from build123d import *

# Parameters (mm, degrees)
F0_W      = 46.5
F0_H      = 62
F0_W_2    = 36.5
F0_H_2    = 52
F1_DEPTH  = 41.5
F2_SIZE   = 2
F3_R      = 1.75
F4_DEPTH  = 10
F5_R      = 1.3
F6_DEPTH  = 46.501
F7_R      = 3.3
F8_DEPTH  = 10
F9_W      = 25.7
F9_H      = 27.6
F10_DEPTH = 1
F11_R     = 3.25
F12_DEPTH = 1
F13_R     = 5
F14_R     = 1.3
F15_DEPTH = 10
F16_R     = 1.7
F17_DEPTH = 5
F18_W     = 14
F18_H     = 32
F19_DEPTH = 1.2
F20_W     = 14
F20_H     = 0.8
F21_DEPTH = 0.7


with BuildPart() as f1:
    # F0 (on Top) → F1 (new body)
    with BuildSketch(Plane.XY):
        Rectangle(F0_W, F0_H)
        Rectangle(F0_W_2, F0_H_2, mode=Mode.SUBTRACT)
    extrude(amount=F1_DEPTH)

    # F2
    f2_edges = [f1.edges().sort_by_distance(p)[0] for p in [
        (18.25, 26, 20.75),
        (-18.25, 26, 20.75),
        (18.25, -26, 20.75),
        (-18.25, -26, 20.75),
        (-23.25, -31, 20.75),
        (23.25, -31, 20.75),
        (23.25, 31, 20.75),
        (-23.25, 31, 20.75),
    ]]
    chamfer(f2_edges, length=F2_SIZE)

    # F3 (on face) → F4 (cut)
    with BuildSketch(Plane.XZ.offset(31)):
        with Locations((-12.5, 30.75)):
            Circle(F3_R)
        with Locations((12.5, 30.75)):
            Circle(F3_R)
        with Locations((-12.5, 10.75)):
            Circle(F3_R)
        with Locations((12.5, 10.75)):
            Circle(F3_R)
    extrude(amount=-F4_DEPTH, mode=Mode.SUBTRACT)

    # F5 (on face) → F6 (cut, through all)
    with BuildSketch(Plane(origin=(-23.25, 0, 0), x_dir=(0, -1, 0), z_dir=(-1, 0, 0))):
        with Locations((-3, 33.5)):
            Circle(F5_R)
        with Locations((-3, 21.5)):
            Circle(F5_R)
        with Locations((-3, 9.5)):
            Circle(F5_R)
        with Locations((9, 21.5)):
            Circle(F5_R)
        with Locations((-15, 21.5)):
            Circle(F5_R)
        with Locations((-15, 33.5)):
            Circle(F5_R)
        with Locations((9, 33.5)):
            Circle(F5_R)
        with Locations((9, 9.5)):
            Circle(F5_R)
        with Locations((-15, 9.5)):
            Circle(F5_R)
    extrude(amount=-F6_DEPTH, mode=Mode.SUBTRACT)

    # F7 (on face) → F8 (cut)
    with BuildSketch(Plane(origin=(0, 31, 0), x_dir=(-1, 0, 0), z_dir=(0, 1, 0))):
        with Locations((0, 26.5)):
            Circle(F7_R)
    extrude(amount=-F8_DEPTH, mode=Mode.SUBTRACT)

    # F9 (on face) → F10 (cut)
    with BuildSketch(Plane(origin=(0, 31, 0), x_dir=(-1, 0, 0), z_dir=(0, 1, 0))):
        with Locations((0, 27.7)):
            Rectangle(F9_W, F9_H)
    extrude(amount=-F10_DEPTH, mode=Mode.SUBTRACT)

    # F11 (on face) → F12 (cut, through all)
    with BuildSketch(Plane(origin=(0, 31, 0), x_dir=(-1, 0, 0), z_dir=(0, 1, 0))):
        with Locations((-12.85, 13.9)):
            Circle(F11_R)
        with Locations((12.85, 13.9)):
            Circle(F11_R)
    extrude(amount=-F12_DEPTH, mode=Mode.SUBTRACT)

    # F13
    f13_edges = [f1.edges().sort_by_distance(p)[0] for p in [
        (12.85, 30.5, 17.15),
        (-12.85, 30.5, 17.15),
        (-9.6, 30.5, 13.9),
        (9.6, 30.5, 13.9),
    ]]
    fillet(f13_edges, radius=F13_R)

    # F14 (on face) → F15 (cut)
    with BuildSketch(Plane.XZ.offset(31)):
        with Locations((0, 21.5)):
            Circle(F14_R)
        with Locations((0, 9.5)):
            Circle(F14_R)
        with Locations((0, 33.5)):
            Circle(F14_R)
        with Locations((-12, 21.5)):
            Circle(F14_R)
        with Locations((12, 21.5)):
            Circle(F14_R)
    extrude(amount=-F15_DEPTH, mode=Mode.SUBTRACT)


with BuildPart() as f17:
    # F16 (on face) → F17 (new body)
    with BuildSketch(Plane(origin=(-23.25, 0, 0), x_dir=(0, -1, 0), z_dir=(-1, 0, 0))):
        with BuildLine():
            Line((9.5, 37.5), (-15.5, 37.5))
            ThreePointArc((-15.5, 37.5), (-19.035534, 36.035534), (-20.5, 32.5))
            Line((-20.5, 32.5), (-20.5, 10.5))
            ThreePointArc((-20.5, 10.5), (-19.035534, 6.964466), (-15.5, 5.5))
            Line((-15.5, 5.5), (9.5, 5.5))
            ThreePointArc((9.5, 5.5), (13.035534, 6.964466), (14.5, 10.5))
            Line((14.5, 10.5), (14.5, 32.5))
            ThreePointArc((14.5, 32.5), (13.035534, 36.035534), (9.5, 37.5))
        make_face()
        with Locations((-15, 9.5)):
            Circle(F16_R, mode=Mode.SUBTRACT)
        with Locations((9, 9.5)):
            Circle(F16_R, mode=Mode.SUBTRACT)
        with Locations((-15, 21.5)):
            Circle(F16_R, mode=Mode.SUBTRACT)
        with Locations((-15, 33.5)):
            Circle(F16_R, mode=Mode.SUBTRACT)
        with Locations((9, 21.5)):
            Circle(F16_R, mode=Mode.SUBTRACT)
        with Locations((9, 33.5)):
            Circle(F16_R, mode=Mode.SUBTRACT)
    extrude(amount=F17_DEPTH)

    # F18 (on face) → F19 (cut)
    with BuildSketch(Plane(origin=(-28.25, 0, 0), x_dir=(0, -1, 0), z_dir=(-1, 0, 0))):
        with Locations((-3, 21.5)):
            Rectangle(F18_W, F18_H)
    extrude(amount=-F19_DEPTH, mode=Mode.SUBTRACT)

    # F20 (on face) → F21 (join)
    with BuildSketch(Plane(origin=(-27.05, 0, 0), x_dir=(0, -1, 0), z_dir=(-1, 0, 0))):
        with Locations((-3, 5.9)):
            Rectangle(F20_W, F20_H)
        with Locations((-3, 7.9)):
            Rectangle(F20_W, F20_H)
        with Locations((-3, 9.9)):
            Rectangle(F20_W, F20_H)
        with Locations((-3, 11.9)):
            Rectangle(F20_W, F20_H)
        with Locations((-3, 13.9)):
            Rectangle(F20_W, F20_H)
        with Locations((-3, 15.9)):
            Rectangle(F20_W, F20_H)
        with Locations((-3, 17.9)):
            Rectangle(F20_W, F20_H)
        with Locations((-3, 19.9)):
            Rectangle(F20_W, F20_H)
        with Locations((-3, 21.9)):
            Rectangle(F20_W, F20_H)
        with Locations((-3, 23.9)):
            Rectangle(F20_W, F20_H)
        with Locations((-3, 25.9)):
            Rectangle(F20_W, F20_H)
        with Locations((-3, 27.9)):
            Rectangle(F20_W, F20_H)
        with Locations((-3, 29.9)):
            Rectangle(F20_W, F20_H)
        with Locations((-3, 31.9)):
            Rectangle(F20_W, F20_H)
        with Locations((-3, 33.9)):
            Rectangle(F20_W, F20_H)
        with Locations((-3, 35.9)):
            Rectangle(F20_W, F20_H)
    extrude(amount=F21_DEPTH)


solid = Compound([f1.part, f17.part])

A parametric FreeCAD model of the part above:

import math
import FreeCAD as App
import Part
import Sketcher
from FreeCAD import Vector
Q = App.Units.Quantity


def edges_at(feature, points):
    """Names of the edges that pass closest to the given points."""
    edges = feature.Shape.Edges
    near = lambda p: min(range(len(edges)), key=lambda i: edges[i].distToShape(Part.Vertex(*p))[0])
    return sorted({f"Edge{near(p) + 1}" for p in points})


def add_polygon(sketch, points):
    """Adds a closed chain of lines whose ends are joined by coincident constraints."""
    first, n = sketch.GeometryCount, len(points)
    for a, b in zip(points, points[1:] + points[:1]):
        sketch.addGeometry(Part.LineSegment(App.Vector(*a, 0), App.Vector(*b, 0)), False)
    for i in range(n):
        sketch.addConstraint(Sketcher.Constraint("Coincident", first + i, 2, first + (i + 1) % n, 1))

doc = App.newDocument("Part")
body = doc.addObject("PartDesign::Body", "Body")

sketch1 = body.newObject("Sketcher::SketchObject", "Sketch")
sketch1.AttachmentSupport = (doc.getObject("XY_Plane"), [""])
sketch1.MapMode = "FlatFace"
add_polygon(sketch1, [(-23, 31), (-23, -31), (23, -31), (23, 31)])
add_polygon(sketch1, [(18, -26), (-18, -26), (-18, 26), (18, 26)])
sketch1.addConstraint([
    Sketcher.Constraint("Vertical", 0),
    Sketcher.Constraint("Horizontal", 1),
    Sketcher.Constraint("Vertical", 2),
    Sketcher.Constraint("Horizontal", 3),
    Sketcher.Constraint("Horizontal", 4),
    Sketcher.Constraint("Vertical", 5),
    Sketcher.Constraint("Horizontal", 6),
    Sketcher.Constraint("Vertical", 7),
    Sketcher.Constraint("Symmetric", 0, 2, 2, 2, -1, 1),
    Sketcher.Constraint("Symmetric", 4, 2, 6, 2, -1, 1),
    Sketcher.Constraint("DistanceY", 0, 2, 0, 1, Q("62 mm")),
    Sketcher.Constraint("DistanceY", 5, 1, 5, 2, Q("52 mm")),
    Sketcher.Constraint("DistanceX", 1, 1, 1, 2, Q("46.5 mm")),
    Sketcher.Constraint("DistanceX", 4, 2, 4, 1, Q("36.5 mm")),
])
pad1 = body.newObject("PartDesign::Pad", "Pad")
pad1.Profile = sketch1
pad1.Length = 41.5
doc.recompute()

chamfer = body.newObject("PartDesign::Chamfer", "Chamfer")
chamfer.Base = (pad1, edges_at(pad1, [
    (18.25, 26, 20.75),
    (-18.25, 26, 20.75),
    (18.25, -26, 20.75),
    (-18.25, -26, 20.75),
    (-23.25, -31, 20.75),
    (23.25, -31, 20.75),
    (23.25, 31, 20.75),
    (-23.25, 31, 20.75),
]))
chamfer.Size = 2

sketch2 = body.newObject("Sketcher::SketchObject", "Sketch001")
sketch2.AttachmentSupport = (doc.getObject("XZ_Plane"), [""])
sketch2.MapMode = "FlatFace"
sketch2.AttachmentOffset = App.Placement(Vector(0, 0, 31), App.Rotation())
sketch2.addGeometry([
    Part.Circle(Vector(-12.5, 30.8, 0), Vector(0, 0, 1), 1.8),
    Part.Circle(Vector(12.5, 30.8, 0), Vector(0, 0, 1), 1.8),
    Part.Circle(Vector(-12.5, 10.8, 0), Vector(0, 0, 1), 1.8),
    Part.Circle(Vector(12.5, 10.8, 0), Vector(0, 0, 1), 1.8),
], False)
sketch2.addConstraint([
    Sketcher.Constraint("Equal", 0, 1),
    Sketcher.Constraint("Equal", 1, 2),
    Sketcher.Constraint("Equal", 2, 3),
    Sketcher.Constraint("Symmetric", 0, 3, 1, 3, -2),
    Sketcher.Constraint("Symmetric", 2, 3, 3, 3, -2),
    Sketcher.Constraint("Vertical", 0, 3, 2, 3),
    Sketcher.Constraint("Diameter", 0, Q("3.5 mm")),
    Sketcher.Constraint("DistanceX", 0, 3, 1, 3, Q("25 mm")),
    Sketcher.Constraint("DistanceY", 2, 3, 0, 3, Q("20 mm")),
    Sketcher.Constraint("DistanceY", -1, 1, 0, 3, Q("30.75 mm")),
])
pocket1 = body.newObject("PartDesign::Pocket", "Pocket")
pocket1.Profile = sketch2
pocket1.Length = 10

sketch3 = body.newObject("Sketcher::SketchObject", "Sketch002")
sketch3.AttachmentSupport = (doc.getObject("YZ_Plane"), [""])
sketch3.MapMode = "FlatFace"
sketch3.AttachmentOffset = App.Placement(Vector(0, 0, -23.25), App.Rotation())
sketch3.addGeometry([
    Part.Circle(Vector(3, 33.5, 0), Vector(0, 0, 1), 1.3),
    Part.Circle(Vector(3, 21.5, 0), Vector(0, 0, 1), 1.3),
    Part.Circle(Vector(3, 9.5, 0), Vector(0, 0, 1), 1.3),
    Part.Circle(Vector(-9, 21.5, 0), Vector(0, 0, 1), 1.3),
    Part.Circle(Vector(15, 21.5, 0), Vector(0, 0, 1), 1.3),
    Part.Circle(Vector(15, 33.5, 0), Vector(0, 0, 1), 1.3),
    Part.Circle(Vector(-9, 33.5, 0), Vector(0, 0, 1), 1.3),
    Part.Circle(Vector(-9, 9.5, 0), Vector(0, 0, 1), 1.3),
    Part.Circle(Vector(15, 9.5, 0), Vector(0, 0, 1), 1.3),
], False)
sketch3.addConstraint([
    Sketcher.Constraint("Equal", 0, 1),
    Sketcher.Constraint("Equal", 1, 2),
    Sketcher.Constraint("Equal", 2, 3),
    Sketcher.Constraint("Equal", 3, 4),
    Sketcher.Constraint("Equal", 4, 5),
    Sketcher.Constraint("Equal", 5, 6),
    Sketcher.Constraint("Equal", 6, 7),
    Sketcher.Constraint("Equal", 7, 8),
    Sketcher.Constraint("Horizontal", 1, 3, 3, 3),
    Sketcher.Constraint("Horizontal", 3, 3, 4, 3),
    Sketcher.Constraint("Horizontal", 0, 3, 5, 3),
    Sketcher.Constraint("Horizontal", 5, 3, 6, 3),
    Sketcher.Constraint("Horizontal", 2, 3, 7, 3),
    Sketcher.Constraint("Horizontal", 7, 3, 8, 3),
    Sketcher.Constraint("Vertical", 0, 3, 1, 3),
    Sketcher.Constraint("Vertical", 1, 3, 2, 3),
    Sketcher.Constraint("Vertical", 4, 3, 5, 3),
    Sketcher.Constraint("Vertical", 3, 3, 6, 3),
    Sketcher.Constraint("Vertical", 6, 3, 7, 3),
    Sketcher.Constraint("Vertical", 5, 3, 8, 3),
    Sketcher.Constraint("Diameter", 0, Q("2.6 mm")),
    Sketcher.Constraint("DistanceX", -1, 1, 0, 3, Q("3 mm")),
    Sketcher.Constraint("DistanceX", 3, 3, -1, 1, Q("9 mm")),
    Sketcher.Constraint("DistanceX", -1, 1, 4, 3, Q("15 mm")),
    Sketcher.Constraint("DistanceY", 1, 3, 0, 3, Q("12 mm")),
    Sketcher.Constraint("DistanceY", 2, 3, 1, 3, Q("12 mm")),
    Sketcher.Constraint("DistanceY", -1, 1, 0, 3, Q("33.5 mm")),
])
pocket2 = body.newObject("PartDesign::Pocket", "Pocket001")
pocket2.Profile = sketch3
pocket2.Type = "ThroughAll"
pocket2.Reversed = True

sketch4 = body.newObject("Sketcher::SketchObject", "Sketch003")
sketch4.AttachmentSupport = (doc.getObject("XZ_Plane"), [""])
sketch4.MapMode = "FlatFace"
sketch4.AttachmentOffset = App.Placement(Vector(0, 0, -31), App.Rotation())
sketch4.addGeometry(Part.Circle(Vector(0, 26.5, 0), Vector(0, 0, 1), 3.3), False)
sketch4.addConstraint([
    Sketcher.Constraint("PointOnObject", 0, 3, -2),
    Sketcher.Constraint("Diameter", 0, Q("6.6 mm")),
    Sketcher.Constraint("DistanceY", -1, 1, 0, 3, Q("26.5 mm")),
])
pocket3 = body.newObject("PartDesign::Pocket", "Pocket002")
pocket3.Profile = sketch4
pocket3.Length = 10
pocket3.Reversed = True

sketch5 = body.newObject("Sketcher::SketchObject", "Sketch004")
sketch5.AttachmentSupport = (doc.getObject("XZ_Plane"), [""])
sketch5.MapMode = "FlatFace"
sketch5.AttachmentOffset = App.Placement(Vector(0, 0, -31), App.Rotation())
add_polygon(sketch5, [(13, 42), (13, 14), (-13, 14), (-13, 42)])
sketch5.addConstraint([
    Sketcher.Constraint("Vertical", 0),
    Sketcher.Constraint("Horizontal", 1),
    Sketcher.Constraint("Vertical", 2),
    Sketcher.Constraint("Horizontal", 3),
    Sketcher.Constraint("DistanceX", 1, 2, 1, 1, Q("25.7 mm")),
    Sketcher.Constraint("DistanceY", 0, 2, 0, 1, Q("27.6 mm")),
    Sketcher.Constraint("DistanceY", -1, 1, 0, 2, Q("13.9 mm")),
    Sketcher.Constraint("DistanceX", -1, 1, 0, 2, Q("12.85 mm")),
])
pocket4 = body.newObject("PartDesign::Pocket", "Pocket003")
pocket4.Profile = sketch5
pocket4.Length = 1
pocket4.Reversed = True

sketch6 = body.newObject("Sketcher::SketchObject", "Sketch005")
sketch6.AttachmentSupport = (doc.getObject("XZ_Plane"), [""])
sketch6.MapMode = "FlatFace"
sketch6.AttachmentOffset = App.Placement(Vector(0, 0, -31), App.Rotation())
sketch6.addGeometry([
    Part.Circle(Vector(12.8, 13.9, 0), Vector(0, 0, 1), 3.2),
    Part.Circle(Vector(-12.8, 13.9, 0), Vector(0, 0, 1), 3.2),
], False)
sketch6.addConstraint([
    Sketcher.Constraint("Equal", 0, 1),
    Sketcher.Constraint("Symmetric", 0, 3, 1, 3, -2),
    Sketcher.Constraint("Diameter", 0, Q("6.5 mm")),
    Sketcher.Constraint("DistanceY", -1, 1, 0, 3, Q("13.9 mm")),
    Sketcher.Constraint("DistanceX", 1, 3, 0, 3, Q("25.7 mm")),
])
pocket5 = body.newObject("PartDesign::Pocket", "Pocket004")
pocket5.Profile = sketch6
pocket5.Length = 1
pocket5.Reversed = True
doc.recompute()

fillet = body.newObject("PartDesign::Fillet", "Fillet")
fillet.Base = (pocket5, edges_at(pocket5, [
    (12.85, 30.5, 17.15),
    (-12.85, 30.5, 17.15),
    (-9.6, 30.5, 13.9),
    (9.6, 30.5, 13.9),
]))
fillet.Radius = 5

sketch7 = body.newObject("Sketcher::SketchObject", "Sketch006")
sketch7.AttachmentSupport = (doc.getObject("XZ_Plane"), [""])
sketch7.MapMode = "FlatFace"
sketch7.AttachmentOffset = App.Placement(Vector(0, 0, 31), App.Rotation())
sketch7.addGeometry([
    Part.Circle(Vector(0, 21.5, 0), Vector(0, 0, 1), 1.3),
    Part.Circle(Vector(0, 9.5, 0), Vector(0, 0, 1), 1.3),
    Part.Circle(Vector(0, 33.5, 0), Vector(0, 0, 1), 1.3),
    Part.Circle(Vector(-12, 21.5, 0), Vector(0, 0, 1), 1.3),
    Part.Circle(Vector(12, 21.5, 0), Vector(0, 0, 1), 1.3),
], False)
sketch7.addConstraint([
    Sketcher.Constraint("Equal", 0, 1),
    Sketcher.Constraint("Equal", 1, 2),
    Sketcher.Constraint("Equal", 2, 3),
    Sketcher.Constraint("Equal", 3, 4),
    Sketcher.Constraint("Symmetric", 3, 3, 4, 3, -2),
    Sketcher.Constraint("PointOnObject", 0, 3, -2),
    Sketcher.Constraint("PointOnObject", 1, 3, -2),
    Sketcher.Constraint("PointOnObject", 2, 3, -2),
    Sketcher.Constraint("Horizontal", 0, 3, 3, 3),
    Sketcher.Constraint("Diameter", 0, Q("2.6 mm")),
    Sketcher.Constraint("DistanceX", 3, 3, -1, 1, Q("12 mm")),
    Sketcher.Constraint("DistanceY", 1, 3, 0, 3, Q("12 mm")),
    Sketcher.Constraint("DistanceY", 0, 3, 2, 3, Q("12 mm")),
    Sketcher.Constraint("DistanceY", -1, 1, 0, 3, Q("21.5 mm")),
])
pocket6 = body.newObject("PartDesign::Pocket", "Pocket005")
pocket6.Profile = sketch7
pocket6.Length = 10
body2 = doc.addObject("PartDesign::Body", "Body001")

sketch8 = body2.newObject("Sketcher::SketchObject", "Sketch007")
sketch8.AttachmentSupport = (doc.getObject("YZ_Plane001"), [""])
sketch8.MapMode = "FlatFace"
sketch8.AttachmentOffset = App.Placement(Vector(0, 0, -23.25), App.Rotation())
sketch8.addGeometry([
    Part.LineSegment(Vector(-9.5, 37.5, 0), Vector(15.5, 37.5, 0)),
    Part.ArcOfCircle(Part.Circle(Vector(15.5, 32.5, 0), Vector(0, 0, 1), 5), math.radians(0), math.radians(90)),
    Part.LineSegment(Vector(20.5, 32.5, 0), Vector(20.5, 10.5, 0)),
    Part.ArcOfCircle(Part.Circle(Vector(15.5, 10.5, 0), Vector(0, 0, 1), 5), math.radians(-90), math.radians(0)),
    Part.LineSegment(Vector(15.5, 5.5, 0), Vector(-9.5, 5.5, 0)),
    Part.ArcOfCircle(Part.Circle(Vector(-9.5, 10.5, 0), Vector(0, 0, 1), 5), math.radians(180), math.radians(270)),
    Part.LineSegment(Vector(-14.5, 10.5, 0), Vector(-14.5, 32.5, 0)),
    Part.ArcOfCircle(Part.Circle(Vector(-9.5, 32.5, 0), Vector(0, 0, 1), 5), math.radians(90), math.radians(180)),
    Part.Circle(Vector(15, 9.5, 0), Vector(0, 0, 1), 1.7),
    Part.Circle(Vector(-9, 9.5, 0), Vector(0, 0, 1), 1.7),
    Part.Circle(Vector(15, 21.5, 0), Vector(0, 0, 1), 1.7),
    Part.Circle(Vector(15, 33.5, 0), Vector(0, 0, 1), 1.7),
    Part.Circle(Vector(-9, 21.5, 0), Vector(0, 0, 1), 1.7),
    Part.Circle(Vector(-9, 33.5, 0), Vector(0, 0, 1), 1.7),
], False)
sketch8.addConstraint([
    Sketcher.Constraint("Tangent", 0, 2, 1, 2),
    Sketcher.Constraint("Tangent", 1, 1, 2, 1),
    Sketcher.Constraint("Tangent", 2, 2, 3, 2),
    Sketcher.Constraint("Tangent", 3, 1, 4, 1),
    Sketcher.Constraint("Tangent", 4, 2, 5, 2),
    Sketcher.Constraint("Tangent", 5, 1, 6, 1),
    Sketcher.Constraint("Tangent", 6, 2, 7, 2),
    Sketcher.Constraint("Tangent", 7, 1, 0, 1),
    Sketcher.Constraint("Horizontal", 0),
    Sketcher.Constraint("Vertical", 2),
    Sketcher.Constraint("Horizontal", 4),
    Sketcher.Constraint("Vertical", 6),
    Sketcher.Constraint("Equal", 1, 3),
    Sketcher.Constraint("Equal", 3, 5),
    Sketcher.Constraint("Equal", 5, 7),
    Sketcher.Constraint("Equal", 8, 9),
    Sketcher.Constraint("Equal", 9, 10),
    Sketcher.Constraint("Equal", 10, 11),
    Sketcher.Constraint("Equal", 11, 12),
    Sketcher.Constraint("Equal", 12, 13),
    Sketcher.Constraint("Horizontal", 8, 3, 9, 3),
    Sketcher.Constraint("Horizontal", 10, 3, 12, 3),
    Sketcher.Constraint("Horizontal", 11, 3, 13, 3),
    Sketcher.Constraint("Vertical", 8, 3, 10, 3),
    Sketcher.Constraint("Vertical", 10, 3, 11, 3),
    Sketcher.Constraint("Vertical", 9, 3, 12, 3),
    Sketcher.Constraint("Vertical", 12, 3, 13, 3),
    Sketcher.Constraint("Radius", 1, Q("5 mm")),
    Sketcher.Constraint("Diameter", 8, Q("3.4 mm")),
    Sketcher.Constraint("DistanceX", 0, 1, 0, 2, Q("25 mm")),
    Sketcher.Constraint("DistanceY", 2, 2, 2, 1, Q("22 mm")),
    Sketcher.Constraint("DistanceX", -1, 1, 8, 3, Q("15 mm")),
    Sketcher.Constraint("DistanceX", 9, 3, -1, 1, Q("9 mm")),
    Sketcher.Constraint("DistanceY", 8, 3, 3, 3, Q("1 mm")),
    Sketcher.Constraint("DistanceY", 3, 3, 10, 3, Q("11 mm")),
    Sketcher.Constraint("DistanceY", 1, 3, 11, 3, Q("1 mm")),
    Sketcher.Constraint("DistanceX", -1, 1, 1, 3, Q("15.5 mm")),
    Sketcher.Constraint("DistanceY", -1, 1, 1, 3, Q("32.5 mm")),
])
pad2 = body2.newObject("PartDesign::Pad", "Pad001")
pad2.Profile = sketch8
pad2.Length = 5
pad2.Reversed = True

sketch9 = body2.newObject("Sketcher::SketchObject", "Sketch008")
sketch9.AttachmentSupport = (doc.getObject("YZ_Plane001"), [""])
sketch9.MapMode = "FlatFace"
sketch9.AttachmentOffset = App.Placement(Vector(0, 0, -28.25), App.Rotation())
add_polygon(sketch9, [(10, 38), (10, 6), (-4, 6), (-4, 38)])
sketch9.addConstraint([
    Sketcher.Constraint("Vertical", 0),
    Sketcher.Constraint("Horizontal", 1),
    Sketcher.Constraint("Vertical", 2),
    Sketcher.Constraint("Horizontal", 3),
    Sketcher.Constraint("DistanceX", 1, 2, 1, 1, Q("14 mm")),
    Sketcher.Constraint("DistanceY", 0, 2, 0, 1, Q("32 mm")),
    Sketcher.Constraint("DistanceX", -1, 1, 0, 2, Q("10 mm")),
    Sketcher.Constraint("DistanceY", -1, 1, 0, 2, Q("5.5 mm")),
])
pocket7 = body2.newObject("PartDesign::Pocket", "Pocket006")
pocket7.Profile = sketch9
pocket7.Length = 1.2
pocket7.Reversed = True

sketch10 = body2.newObject("Sketcher::SketchObject", "Sketch009")
sketch10.AttachmentSupport = (doc.getObject("YZ_Plane001"), [""])
sketch10.MapMode = "FlatFace"
sketch10.AttachmentOffset = App.Placement(Vector(0, 0, -27.05), App.Rotation())
add_polygon(sketch10, [(10, 6.3), (10, 5.5), (-4, 5.5), (-4, 6.3)])
add_polygon(sketch10, [(10, 8.3), (10, 7.5), (-4, 7.5), (-4, 8.3)])
add_polygon(sketch10, [(10, 10.3), (10, 9.5), (-4, 9.5), (-4, 10.3)])
add_polygon(sketch10, [(10, 12.3), (10, 11.5), (-4, 11.5), (-4, 12.3)])
add_polygon(sketch10, [(10, 14.3), (10, 13.5), (-4, 13.5), (-4, 14.3)])
add_polygon(sketch10, [(10, 16.3), (10, 15.5), (-4, 15.5), (-4, 16.3)])
add_polygon(sketch10, [(10, 18.3), (10, 17.5), (-4, 17.5), (-4, 18.3)])
add_polygon(sketch10, [(10, 20.3), (10, 19.5), (-4, 19.5), (-4, 20.3)])
add_polygon(sketch10, [(10, 22.3), (10, 21.5), (-4, 21.5), (-4, 22.3)])
add_polygon(sketch10, [(10, 24.3), (10, 23.5), (-4, 23.5), (-4, 24.3)])
add_polygon(sketch10, [(10, 26.3), (10, 25.5), (-4, 25.5), (-4, 26.3)])
add_polygon(sketch10, [(10, 28.3), (10, 27.5), (-4, 27.5), (-4, 28.3)])
add_polygon(sketch10, [(10, 30.3), (10, 29.5), (-4, 29.5), (-4, 30.3)])
add_polygon(sketch10, [(10, 32.3), (10, 31.5), (-4, 31.5), (-4, 32.3)])
add_polygon(sketch10, [(10, 34.3), (10, 33.5), (-4, 33.5), (-4, 34.3)])
add_polygon(sketch10, [(10, 36.3), (10, 35.5), (-4, 35.5), (-4, 36.3)])
sketch10.addConstraint([
    Sketcher.Constraint("Vertical", 0),
    Sketcher.Constraint("Horizontal", 1),
    Sketcher.Constraint("Vertical", 2),
    Sketcher.Constraint("Horizontal", 3),
    Sketcher.Constraint("Vertical", 4),
    Sketcher.Constraint("Horizontal", 5),
    Sketcher.Constraint("Vertical", 6),
    Sketcher.Constraint("Horizontal", 7),
    Sketcher.Constraint("Vertical", 8),
    Sketcher.Constraint("Horizontal", 9),
    Sketcher.Constraint("Vertical", 10),
    Sketcher.Constraint("Horizontal", 11),
    Sketcher.Constraint("Vertical", 12),
    Sketcher.Constraint("Horizontal", 13),
    Sketcher.Constraint("Vertical", 14),
    Sketcher.Constraint("Horizontal", 15),
    Sketcher.Constraint("Vertical", 16),
    Sketcher.Constraint("Horizontal", 17),
    Sketcher.Constraint("Vertical", 18),
    Sketcher.Constraint("Horizontal", 19),
    Sketcher.Constraint("Vertical", 20),
    Sketcher.Constraint("Horizontal", 21),
    Sketcher.Constraint("Vertical", 22),
    Sketcher.Constraint("Horizontal", 23),
    Sketcher.Constraint("Vertical", 24),
    Sketcher.Constraint("Horizontal", 25),
    Sketcher.Constraint("Vertical", 26),
    Sketcher.Constraint("Horizontal", 27),
    Sketcher.Constraint("Vertical", 28),
    Sketcher.Constraint("Horizontal", 29),
    Sketcher.Constraint("Vertical", 30),
    Sketcher.Constraint("Horizontal", 31),
    Sketcher.Constraint("Vertical", 32),
    Sketcher.Constraint("Horizontal", 33),
    Sketcher.Constraint("Vertical", 34),
    Sketcher.Constraint("Horizontal", 35),
    Sketcher.Constraint("Vertical", 36),
    Sketcher.Constraint("Horizontal", 37),
    Sketcher.Constraint("Vertical", 38),
    Sketcher.Constraint("Horizontal", 39),
    Sketcher.Constraint("Vertical", 40),
    Sketcher.Constraint("Horizontal", 41),
    Sketcher.Constraint("Vertical", 42),
    Sketcher.Constraint("Horizontal", 43),
    Sketcher.Constraint("Vertical", 44),
    Sketcher.Constraint("Horizontal", 45),
    Sketcher.Constraint("Vertical", 46),
    Sketcher.Constraint("Horizontal", 47),
    Sketcher.Constraint("Vertical", 48),
    Sketcher.Constraint("Horizontal", 49),
    Sketcher.Constraint("Vertical", 50),
    Sketcher.Constraint("Horizontal", 51),
    Sketcher.Constraint("Vertical", 52),
    Sketcher.Constraint("Horizontal", 53),
    Sketcher.Constraint("Vertical", 54),
    Sketcher.Constraint("Horizontal", 55),
    Sketcher.Constraint("Vertical", 56),
    Sketcher.Constraint("Horizontal", 57),
    Sketcher.Constraint("Vertical", 58),
    Sketcher.Constraint("Horizontal", 59),
    Sketcher.Constraint("Vertical", 60),
    Sketcher.Constraint("Horizontal", 61),
    Sketcher.Constraint("Vertical", 62),
    Sketcher.Constraint("Horizontal", 63),
    Sketcher.Constraint("Vertical", 3, 2, 4, 2),
    Sketcher.Constraint("Vertical", 2, 2, 5, 2),
    Sketcher.Constraint("Vertical", 7, 2, 8, 2),
    Sketcher.Constraint("Vertical", 6, 2, 9, 2),
    Sketcher.Constraint("Vertical", 11, 2, 12, 2),
    Sketcher.Constraint("Vertical", 10, 2, 13, 2),
    Sketcher.Constraint("Vertical", 15, 2, 16, 2),
    Sketcher.Constraint("Vertical", 14, 2, 17, 2),
    Sketcher.Constraint("Vertical", 19, 2, 20, 2),
    Sketcher.Constraint("Vertical", 18, 2, 21, 2),
    Sketcher.Constraint("Vertical", 23, 2, 24, 2),
    Sketcher.Constraint("Vertical", 22, 2, 25, 2),
    Sketcher.Constraint("Vertical", 27, 2, 28, 2),
    Sketcher.Constraint("Vertical", 26, 2, 29, 2),
    Sketcher.Constraint("Vertical", 31, 2, 32, 2),
    Sketcher.Constraint("Vertical", 30, 2, 33, 2),
    Sketcher.Constraint("Vertical", 35, 2, 36, 2),
    Sketcher.Constraint("Vertical", 34, 2, 37, 2),
    Sketcher.Constraint("Vertical", 39, 2, 40, 2),
    Sketcher.Constraint("Vertical", 38, 2, 41, 2),
    Sketcher.Constraint("Vertical", 43, 2, 44, 2),
    Sketcher.Constraint("Vertical", 42, 2, 45, 2),
    Sketcher.Constraint("Vertical", 47, 2, 48, 2),
    Sketcher.Constraint("Vertical", 46, 2, 49, 2),
    Sketcher.Constraint("Vertical", 51, 2, 52, 2),
    Sketcher.Constraint("Vertical", 50, 2, 53, 2),
    Sketcher.Constraint("Vertical", 55, 2, 56, 2),
    Sketcher.Constraint("Vertical", 54, 2, 57, 2),
    Sketcher.Constraint("Vertical", 59, 2, 60, 2),
    Sketcher.Constraint("Vertical", 58, 2, 61, 2),
    Sketcher.Constraint("Equal", 2, 4),
    Sketcher.Constraint("Equal", 6, 8),
    Sketcher.Constraint("Equal", 10, 12),
    Sketcher.Constraint("Equal", 14, 16),
    Sketcher.Constraint("Equal", 18, 20),
    Sketcher.Constraint("Equal", 22, 24),
    Sketcher.Constraint("Equal", 26, 28),
    Sketcher.Constraint("Equal", 30, 32),
    Sketcher.Constraint("Equal", 34, 36),
    Sketcher.Constraint("Equal", 38, 40),
    Sketcher.Constraint("Equal", 42, 44),
    Sketcher.Constraint("Equal", 46, 48),
    Sketcher.Constraint("Equal", 50, 52),
    Sketcher.Constraint("Equal", 54, 56),
    Sketcher.Constraint("Equal", 58, 60),
    Sketcher.Constraint("DistanceX", 1, 2, 1, 1, Q("14 mm")),
    Sketcher.Constraint("DistanceY", 0, 2, 0, 1, Q("0.8 mm")),
    Sketcher.Constraint("DistanceX", -1, 1, 0, 2, Q("10 mm")),
    Sketcher.Constraint("DistanceY", -1, 1, 0, 2, Q("5.5 mm")),
    Sketcher.Constraint("DistanceY", -1, 1, 4, 2, Q("7.5 mm")),
    Sketcher.Constraint("DistanceY", -1, 1, 8, 2, Q("9.5 mm")),
    Sketcher.Constraint("DistanceY", -1, 1, 12, 2, Q("11.5 mm")),
    Sketcher.Constraint("DistanceY", -1, 1, 16, 2, Q("13.5 mm")),
    Sketcher.Constraint("DistanceY", -1, 1, 20, 2, Q("15.5 mm")),
    Sketcher.Constraint("DistanceY", -1, 1, 24, 2, Q("17.5 mm")),
    Sketcher.Constraint("DistanceY", -1, 1, 28, 2, Q("19.5 mm")),
    Sketcher.Constraint("DistanceY", -1, 1, 32, 2, Q("21.5 mm")),
    Sketcher.Constraint("DistanceY", -1, 1, 36, 2, Q("23.5 mm")),
    Sketcher.Constraint("DistanceY", -1, 1, 40, 2, Q("25.5 mm")),
    Sketcher.Constraint("DistanceY", -1, 1, 44, 2, Q("27.5 mm")),
    Sketcher.Constraint("DistanceY", -1, 1, 48, 2, Q("29.5 mm")),
    Sketcher.Constraint("DistanceY", -1, 1, 52, 2, Q("31.5 mm")),
    Sketcher.Constraint("DistanceY", -1, 1, 56, 2, Q("33.5 mm")),
    Sketcher.Constraint("DistanceY", -1, 1, 60, 2, Q("35.5 mm")),
])
pad3 = body2.newObject("PartDesign::Pad", "Pad002")
pad3.Profile = sketch10
pad3.Length = 0.7
pad3.Reversed = True

doc.recompute()
